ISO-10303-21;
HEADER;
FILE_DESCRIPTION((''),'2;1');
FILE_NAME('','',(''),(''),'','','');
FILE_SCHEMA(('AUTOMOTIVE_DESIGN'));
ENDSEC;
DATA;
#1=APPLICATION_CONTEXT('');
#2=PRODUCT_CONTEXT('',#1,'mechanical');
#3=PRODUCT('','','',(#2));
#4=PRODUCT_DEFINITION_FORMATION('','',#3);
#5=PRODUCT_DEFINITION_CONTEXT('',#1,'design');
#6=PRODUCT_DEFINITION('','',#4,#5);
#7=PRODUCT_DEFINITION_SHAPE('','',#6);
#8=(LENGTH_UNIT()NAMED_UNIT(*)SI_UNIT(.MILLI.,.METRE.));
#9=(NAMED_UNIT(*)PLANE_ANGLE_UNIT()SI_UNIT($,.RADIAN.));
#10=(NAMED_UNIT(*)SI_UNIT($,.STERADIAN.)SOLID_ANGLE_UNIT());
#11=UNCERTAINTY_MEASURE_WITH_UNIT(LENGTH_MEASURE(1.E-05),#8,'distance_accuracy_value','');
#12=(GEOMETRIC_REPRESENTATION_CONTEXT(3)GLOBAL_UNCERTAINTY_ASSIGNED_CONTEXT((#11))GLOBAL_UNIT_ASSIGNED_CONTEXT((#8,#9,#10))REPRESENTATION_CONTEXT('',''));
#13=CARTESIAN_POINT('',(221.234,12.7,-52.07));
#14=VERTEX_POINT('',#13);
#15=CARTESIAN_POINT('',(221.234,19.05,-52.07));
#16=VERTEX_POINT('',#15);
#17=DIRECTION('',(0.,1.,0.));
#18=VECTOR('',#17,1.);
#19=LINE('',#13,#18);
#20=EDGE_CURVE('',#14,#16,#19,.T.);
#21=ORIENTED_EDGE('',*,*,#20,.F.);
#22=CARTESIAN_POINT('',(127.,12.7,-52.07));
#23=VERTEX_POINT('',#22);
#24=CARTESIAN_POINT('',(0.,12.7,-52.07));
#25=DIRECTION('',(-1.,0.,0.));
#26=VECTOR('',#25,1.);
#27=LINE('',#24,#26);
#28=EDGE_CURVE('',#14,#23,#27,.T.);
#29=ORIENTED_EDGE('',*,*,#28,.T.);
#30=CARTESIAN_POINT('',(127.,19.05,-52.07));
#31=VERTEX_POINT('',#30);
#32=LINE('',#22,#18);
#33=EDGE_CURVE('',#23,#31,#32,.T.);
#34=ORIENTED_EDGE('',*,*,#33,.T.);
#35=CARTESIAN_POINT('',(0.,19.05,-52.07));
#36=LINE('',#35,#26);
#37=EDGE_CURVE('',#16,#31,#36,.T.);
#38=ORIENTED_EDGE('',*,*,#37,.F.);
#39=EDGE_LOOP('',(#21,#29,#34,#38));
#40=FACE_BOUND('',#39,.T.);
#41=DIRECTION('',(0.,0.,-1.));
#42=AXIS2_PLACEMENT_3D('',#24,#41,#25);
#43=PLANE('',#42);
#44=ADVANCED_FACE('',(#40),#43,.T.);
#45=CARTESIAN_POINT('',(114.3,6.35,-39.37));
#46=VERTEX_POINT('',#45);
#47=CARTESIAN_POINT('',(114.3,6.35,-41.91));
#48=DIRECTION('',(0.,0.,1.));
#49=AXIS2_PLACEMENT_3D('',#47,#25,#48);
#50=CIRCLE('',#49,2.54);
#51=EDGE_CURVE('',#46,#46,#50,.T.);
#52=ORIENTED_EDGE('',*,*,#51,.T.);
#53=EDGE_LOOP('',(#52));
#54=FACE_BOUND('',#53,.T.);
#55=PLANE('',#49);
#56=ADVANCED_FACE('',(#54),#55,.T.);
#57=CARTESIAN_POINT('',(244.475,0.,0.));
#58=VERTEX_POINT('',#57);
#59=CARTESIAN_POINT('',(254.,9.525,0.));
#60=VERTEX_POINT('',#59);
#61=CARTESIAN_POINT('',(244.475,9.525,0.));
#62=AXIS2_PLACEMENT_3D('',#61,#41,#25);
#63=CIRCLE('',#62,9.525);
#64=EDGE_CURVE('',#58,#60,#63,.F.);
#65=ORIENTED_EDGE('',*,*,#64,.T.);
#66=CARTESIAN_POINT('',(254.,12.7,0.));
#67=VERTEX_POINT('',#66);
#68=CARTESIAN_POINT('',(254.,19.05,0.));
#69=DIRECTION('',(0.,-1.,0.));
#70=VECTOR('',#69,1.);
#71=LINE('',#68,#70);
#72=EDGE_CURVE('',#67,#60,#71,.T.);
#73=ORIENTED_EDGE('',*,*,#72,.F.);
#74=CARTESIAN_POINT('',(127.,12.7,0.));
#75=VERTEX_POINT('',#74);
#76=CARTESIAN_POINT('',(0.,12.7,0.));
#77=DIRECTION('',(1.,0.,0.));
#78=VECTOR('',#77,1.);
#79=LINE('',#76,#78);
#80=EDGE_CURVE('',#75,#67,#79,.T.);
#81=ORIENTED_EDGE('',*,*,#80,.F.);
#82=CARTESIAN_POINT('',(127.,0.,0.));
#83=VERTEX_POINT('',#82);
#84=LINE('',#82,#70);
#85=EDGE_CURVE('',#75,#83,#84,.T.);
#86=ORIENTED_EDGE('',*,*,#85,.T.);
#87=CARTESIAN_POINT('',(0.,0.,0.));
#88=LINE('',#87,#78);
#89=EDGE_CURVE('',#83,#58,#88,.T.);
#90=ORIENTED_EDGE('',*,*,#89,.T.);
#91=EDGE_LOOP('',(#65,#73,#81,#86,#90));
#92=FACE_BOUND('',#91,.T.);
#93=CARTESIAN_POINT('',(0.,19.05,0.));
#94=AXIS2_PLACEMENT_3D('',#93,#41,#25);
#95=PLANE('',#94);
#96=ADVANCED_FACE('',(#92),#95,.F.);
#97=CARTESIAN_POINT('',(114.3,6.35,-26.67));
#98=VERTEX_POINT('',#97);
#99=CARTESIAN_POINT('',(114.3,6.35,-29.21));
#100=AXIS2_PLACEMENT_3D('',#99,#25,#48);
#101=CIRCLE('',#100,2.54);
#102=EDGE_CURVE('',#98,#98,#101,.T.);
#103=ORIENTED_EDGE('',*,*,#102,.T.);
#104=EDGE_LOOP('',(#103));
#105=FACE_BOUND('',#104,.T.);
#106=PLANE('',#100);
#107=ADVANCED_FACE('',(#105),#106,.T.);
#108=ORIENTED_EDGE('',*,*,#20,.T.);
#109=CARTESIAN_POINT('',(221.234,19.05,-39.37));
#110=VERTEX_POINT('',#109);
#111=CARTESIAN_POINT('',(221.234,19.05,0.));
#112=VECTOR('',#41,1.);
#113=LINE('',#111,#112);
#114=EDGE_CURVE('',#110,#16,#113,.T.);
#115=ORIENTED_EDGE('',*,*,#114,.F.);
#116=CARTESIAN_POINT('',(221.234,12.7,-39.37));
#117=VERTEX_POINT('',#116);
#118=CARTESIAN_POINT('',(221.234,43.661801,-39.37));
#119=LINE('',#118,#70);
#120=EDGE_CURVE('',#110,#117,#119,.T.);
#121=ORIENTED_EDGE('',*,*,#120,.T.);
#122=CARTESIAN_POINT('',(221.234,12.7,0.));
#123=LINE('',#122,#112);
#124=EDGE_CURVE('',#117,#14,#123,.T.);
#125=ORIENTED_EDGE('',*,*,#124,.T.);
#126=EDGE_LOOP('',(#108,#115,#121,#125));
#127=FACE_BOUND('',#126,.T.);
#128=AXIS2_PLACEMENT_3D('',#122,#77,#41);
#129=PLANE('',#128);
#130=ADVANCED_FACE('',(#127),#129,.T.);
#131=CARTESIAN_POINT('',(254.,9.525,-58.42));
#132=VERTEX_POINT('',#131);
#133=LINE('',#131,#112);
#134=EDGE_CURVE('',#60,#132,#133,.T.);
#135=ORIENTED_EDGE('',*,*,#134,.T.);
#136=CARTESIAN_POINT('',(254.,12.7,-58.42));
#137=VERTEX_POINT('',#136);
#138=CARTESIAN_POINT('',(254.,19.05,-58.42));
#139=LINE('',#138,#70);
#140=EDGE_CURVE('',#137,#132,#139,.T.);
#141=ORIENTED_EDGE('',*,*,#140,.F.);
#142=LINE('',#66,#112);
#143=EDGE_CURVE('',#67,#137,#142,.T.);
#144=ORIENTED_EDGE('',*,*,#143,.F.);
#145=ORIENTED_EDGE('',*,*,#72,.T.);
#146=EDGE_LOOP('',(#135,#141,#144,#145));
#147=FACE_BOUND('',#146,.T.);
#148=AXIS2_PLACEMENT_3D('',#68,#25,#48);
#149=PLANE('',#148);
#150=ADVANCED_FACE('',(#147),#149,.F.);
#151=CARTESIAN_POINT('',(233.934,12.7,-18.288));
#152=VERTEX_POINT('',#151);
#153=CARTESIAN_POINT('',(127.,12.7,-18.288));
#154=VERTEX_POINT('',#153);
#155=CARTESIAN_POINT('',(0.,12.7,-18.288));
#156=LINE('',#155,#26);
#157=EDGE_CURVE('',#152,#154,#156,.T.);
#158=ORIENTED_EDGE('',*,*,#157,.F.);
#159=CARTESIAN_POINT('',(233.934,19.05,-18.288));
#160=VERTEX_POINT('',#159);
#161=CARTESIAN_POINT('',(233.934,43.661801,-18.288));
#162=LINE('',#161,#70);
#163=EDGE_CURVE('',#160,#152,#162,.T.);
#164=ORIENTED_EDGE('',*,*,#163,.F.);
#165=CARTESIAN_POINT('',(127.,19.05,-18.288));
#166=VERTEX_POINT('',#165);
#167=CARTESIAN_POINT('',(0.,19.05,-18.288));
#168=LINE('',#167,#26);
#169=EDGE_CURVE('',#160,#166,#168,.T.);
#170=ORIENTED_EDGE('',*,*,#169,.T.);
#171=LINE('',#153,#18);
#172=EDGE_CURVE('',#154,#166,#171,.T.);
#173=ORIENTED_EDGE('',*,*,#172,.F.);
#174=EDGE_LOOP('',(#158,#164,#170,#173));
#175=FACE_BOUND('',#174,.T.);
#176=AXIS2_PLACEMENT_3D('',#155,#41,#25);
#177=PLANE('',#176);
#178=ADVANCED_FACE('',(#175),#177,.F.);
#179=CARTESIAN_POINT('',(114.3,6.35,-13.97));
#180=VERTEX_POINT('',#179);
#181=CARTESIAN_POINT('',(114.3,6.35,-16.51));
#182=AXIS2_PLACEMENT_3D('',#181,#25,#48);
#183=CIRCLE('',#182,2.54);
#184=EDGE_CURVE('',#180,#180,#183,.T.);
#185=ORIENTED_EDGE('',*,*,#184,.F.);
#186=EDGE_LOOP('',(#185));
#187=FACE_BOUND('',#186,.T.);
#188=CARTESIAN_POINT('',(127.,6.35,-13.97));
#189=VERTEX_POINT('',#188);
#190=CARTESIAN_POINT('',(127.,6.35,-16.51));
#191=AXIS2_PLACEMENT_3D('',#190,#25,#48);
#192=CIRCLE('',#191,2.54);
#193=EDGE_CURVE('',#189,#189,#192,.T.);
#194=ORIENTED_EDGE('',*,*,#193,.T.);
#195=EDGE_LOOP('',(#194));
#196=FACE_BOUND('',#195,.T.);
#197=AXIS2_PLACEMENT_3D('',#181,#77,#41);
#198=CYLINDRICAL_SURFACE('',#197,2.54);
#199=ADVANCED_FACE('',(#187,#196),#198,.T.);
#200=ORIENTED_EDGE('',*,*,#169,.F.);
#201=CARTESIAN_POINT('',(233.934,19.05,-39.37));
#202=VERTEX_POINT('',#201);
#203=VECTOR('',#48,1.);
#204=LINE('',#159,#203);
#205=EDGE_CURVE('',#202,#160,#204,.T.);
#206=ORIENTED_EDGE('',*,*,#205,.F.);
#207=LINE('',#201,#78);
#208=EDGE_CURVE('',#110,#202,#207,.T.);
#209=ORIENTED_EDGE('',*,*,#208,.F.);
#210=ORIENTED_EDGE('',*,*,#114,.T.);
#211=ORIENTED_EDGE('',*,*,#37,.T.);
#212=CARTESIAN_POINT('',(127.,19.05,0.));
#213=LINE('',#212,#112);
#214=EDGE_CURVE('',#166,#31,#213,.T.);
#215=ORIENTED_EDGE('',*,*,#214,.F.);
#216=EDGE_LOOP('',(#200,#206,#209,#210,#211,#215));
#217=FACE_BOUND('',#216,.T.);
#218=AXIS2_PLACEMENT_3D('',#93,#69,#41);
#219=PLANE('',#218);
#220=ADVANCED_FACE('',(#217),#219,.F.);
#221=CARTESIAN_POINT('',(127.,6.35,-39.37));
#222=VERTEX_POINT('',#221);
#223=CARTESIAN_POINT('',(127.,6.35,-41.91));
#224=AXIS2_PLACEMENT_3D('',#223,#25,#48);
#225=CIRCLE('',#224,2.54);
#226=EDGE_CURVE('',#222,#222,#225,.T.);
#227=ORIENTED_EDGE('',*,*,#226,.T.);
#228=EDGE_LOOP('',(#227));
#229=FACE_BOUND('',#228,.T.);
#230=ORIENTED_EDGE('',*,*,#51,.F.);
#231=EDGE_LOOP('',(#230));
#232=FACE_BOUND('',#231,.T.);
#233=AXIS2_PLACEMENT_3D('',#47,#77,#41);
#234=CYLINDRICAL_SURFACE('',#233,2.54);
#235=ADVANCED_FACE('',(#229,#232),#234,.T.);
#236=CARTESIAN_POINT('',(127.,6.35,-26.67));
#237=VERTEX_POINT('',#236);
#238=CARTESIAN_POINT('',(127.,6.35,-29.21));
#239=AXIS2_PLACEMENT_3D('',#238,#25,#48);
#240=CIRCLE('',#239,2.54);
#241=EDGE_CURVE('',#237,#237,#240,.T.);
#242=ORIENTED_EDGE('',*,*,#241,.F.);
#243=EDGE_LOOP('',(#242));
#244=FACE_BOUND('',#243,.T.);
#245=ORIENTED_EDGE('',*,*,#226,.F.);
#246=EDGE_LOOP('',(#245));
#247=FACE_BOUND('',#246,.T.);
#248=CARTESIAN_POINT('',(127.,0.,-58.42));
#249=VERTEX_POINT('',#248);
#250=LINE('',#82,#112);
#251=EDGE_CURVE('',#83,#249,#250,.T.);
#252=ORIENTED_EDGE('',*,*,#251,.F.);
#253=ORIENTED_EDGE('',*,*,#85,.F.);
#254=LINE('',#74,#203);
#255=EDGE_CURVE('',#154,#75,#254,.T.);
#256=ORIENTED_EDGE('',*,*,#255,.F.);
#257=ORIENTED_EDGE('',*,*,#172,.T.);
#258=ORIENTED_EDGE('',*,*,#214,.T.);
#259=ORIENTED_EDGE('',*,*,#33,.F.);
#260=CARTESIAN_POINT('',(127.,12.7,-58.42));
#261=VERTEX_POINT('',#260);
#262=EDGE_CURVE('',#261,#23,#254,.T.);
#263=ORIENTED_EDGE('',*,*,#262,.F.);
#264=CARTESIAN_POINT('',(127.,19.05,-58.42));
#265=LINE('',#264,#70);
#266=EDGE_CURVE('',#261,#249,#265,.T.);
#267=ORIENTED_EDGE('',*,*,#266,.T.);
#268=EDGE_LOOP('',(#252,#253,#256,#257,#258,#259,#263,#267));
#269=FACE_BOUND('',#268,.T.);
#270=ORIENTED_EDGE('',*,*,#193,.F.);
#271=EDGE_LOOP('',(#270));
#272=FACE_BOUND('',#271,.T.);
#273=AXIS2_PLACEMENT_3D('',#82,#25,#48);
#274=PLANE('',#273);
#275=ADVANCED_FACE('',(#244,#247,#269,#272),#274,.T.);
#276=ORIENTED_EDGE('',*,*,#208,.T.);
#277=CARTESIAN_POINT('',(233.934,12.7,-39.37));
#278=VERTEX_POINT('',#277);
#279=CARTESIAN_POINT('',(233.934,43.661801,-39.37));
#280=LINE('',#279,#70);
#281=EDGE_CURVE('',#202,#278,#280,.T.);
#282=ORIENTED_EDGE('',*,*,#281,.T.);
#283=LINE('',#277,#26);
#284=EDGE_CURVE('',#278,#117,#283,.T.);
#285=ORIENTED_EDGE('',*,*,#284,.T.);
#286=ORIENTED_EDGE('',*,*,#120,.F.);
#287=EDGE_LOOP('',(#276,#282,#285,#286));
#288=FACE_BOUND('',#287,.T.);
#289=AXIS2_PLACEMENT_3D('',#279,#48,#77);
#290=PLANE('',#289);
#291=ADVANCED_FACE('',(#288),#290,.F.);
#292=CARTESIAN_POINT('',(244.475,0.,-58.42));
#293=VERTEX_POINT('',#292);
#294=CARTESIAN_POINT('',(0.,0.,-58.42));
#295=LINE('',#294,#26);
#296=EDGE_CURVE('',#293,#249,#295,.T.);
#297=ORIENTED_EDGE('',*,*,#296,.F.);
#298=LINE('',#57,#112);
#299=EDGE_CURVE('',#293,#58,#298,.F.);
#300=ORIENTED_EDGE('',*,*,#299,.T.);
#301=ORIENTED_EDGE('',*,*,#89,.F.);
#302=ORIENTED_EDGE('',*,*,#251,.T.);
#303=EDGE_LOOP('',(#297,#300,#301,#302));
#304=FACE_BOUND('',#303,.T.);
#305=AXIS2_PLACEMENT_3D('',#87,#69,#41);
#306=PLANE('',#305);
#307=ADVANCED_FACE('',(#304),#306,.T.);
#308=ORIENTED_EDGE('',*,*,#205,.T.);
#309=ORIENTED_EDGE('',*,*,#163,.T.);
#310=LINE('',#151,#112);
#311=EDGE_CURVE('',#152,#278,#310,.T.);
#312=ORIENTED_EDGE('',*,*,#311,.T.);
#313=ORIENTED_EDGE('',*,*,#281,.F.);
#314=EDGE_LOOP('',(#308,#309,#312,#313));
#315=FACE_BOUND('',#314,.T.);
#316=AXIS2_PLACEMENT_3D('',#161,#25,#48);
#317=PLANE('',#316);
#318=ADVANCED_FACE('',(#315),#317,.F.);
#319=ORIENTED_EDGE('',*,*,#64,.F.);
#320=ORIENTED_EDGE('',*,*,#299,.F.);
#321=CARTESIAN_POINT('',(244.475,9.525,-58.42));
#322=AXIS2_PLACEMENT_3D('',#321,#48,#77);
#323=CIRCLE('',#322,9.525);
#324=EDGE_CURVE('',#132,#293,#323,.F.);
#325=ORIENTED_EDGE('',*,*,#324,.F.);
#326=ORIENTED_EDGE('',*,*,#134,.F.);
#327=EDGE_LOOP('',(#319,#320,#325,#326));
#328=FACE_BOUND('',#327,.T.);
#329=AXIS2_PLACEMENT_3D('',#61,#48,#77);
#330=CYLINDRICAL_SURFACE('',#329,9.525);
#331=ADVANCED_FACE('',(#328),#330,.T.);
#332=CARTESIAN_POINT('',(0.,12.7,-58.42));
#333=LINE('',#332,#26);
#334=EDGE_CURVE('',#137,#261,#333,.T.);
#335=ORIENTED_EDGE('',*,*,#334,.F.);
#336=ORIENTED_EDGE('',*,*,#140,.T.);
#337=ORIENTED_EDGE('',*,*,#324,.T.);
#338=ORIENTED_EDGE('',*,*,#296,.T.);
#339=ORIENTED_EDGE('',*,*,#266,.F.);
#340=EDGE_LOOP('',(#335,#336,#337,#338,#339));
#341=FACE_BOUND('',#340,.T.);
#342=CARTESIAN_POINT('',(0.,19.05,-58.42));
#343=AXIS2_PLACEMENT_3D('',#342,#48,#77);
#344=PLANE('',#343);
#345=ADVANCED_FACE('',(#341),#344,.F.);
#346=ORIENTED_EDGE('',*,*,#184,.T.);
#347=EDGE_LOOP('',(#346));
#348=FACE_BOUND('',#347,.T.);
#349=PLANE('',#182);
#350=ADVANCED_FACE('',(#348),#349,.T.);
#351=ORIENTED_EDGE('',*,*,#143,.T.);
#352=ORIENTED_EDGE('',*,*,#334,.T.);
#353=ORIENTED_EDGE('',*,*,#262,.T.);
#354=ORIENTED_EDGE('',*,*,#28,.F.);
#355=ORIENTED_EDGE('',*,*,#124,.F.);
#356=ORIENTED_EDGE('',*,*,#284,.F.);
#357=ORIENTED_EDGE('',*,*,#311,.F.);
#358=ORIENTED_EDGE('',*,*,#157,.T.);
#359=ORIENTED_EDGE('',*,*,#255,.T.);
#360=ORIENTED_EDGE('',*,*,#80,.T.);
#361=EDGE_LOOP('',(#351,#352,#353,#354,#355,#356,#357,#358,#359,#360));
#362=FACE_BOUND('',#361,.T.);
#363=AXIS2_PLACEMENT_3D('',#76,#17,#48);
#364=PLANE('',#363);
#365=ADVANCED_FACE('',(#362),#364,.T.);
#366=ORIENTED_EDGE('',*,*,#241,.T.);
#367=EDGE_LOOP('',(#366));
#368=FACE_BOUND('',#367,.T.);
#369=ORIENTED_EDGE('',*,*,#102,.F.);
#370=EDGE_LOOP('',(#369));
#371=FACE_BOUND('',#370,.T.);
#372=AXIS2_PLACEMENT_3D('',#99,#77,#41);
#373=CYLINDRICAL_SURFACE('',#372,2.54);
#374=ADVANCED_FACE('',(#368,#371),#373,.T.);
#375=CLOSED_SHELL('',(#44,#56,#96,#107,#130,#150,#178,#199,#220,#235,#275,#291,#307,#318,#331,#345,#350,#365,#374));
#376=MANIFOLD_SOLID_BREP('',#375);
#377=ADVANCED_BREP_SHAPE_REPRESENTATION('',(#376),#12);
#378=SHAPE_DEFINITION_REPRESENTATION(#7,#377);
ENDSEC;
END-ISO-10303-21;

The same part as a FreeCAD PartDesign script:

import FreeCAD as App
import Part
import Sketcher
Q = App.Units.Quantity


def edges_at(feature, points):
    """Names of the edges that pass closest to the given points."""
    edges = feature.Shape.Edges
    near = lambda p: min(range(len(edges)), key=lambda i: edges[i].distToShape(Part.Vertex(*p))[0])
    return sorted({f"Edge{near(p) + 1}" for p in points})

doc = App.newDocument("Part")
body = doc.addObject("PartDesign::Body", "Body")

# Sketch on XZ plane
sketch1 = doc.addObject("Sketcher::SketchObject", "Sketch")
body.addObject(sketch1)
sketch1.AttachmentSupport = (doc.XZ_Plane, [""])
sketch1.MapMode = "FlatFace"
sketch1.addGeometry([
    Part.LineSegment(App.Vector(0, -58, 0), App.Vector(0, 0, 0)),
    Part.LineSegment(App.Vector(0, 0, 0), App.Vector(254, 0, 0)),
    Part.LineSegment(App.Vector(254, 0, 0), App.Vector(254, -58, 0)),
    Part.LineSegment(App.Vector(254, -58, 0), App.Vector(0, -58, 0)),
], False)
sketch1.addConstraint([
    Sketcher.Constraint("Coincident", 0, 2, 1, 1),
    Sketcher.Constraint("Coincident", 1, 2, 2, 1),
    Sketcher.Constraint("Coincident", 2, 2, 3, 1),
    Sketcher.Constraint("Coincident", 3, 2, 0, 1),
    Sketcher.Constraint("Vertical", 0),
    Sketcher.Constraint("Horizontal", 1),
    Sketcher.Constraint("Vertical", 2),
    Sketcher.Constraint("Horizontal", 3),
    Sketcher.Constraint("Coincident", 0, 2, -1, 1),
    Sketcher.Constraint("DistanceX", 1, 1, 1, 2, Q("10 in")),
    Sketcher.Constraint("DistanceY", 0, 1, 0, 2, Q("2.3 in")),
])
pad1 = doc.addObject("PartDesign::Pad", "Pad")
body.addObject(pad1)
pad1.Profile = sketch1
pad1.Length = Q("0.75 in")
pad1.Reversed = True

# Sketch on XZ plane
sketch2 = doc.addObject("Sketcher::SketchObject", "Sketch001")
body.addObject(sketch2)
sketch2.AttachmentSupport = (doc.XZ_Plane, [""])
sketch2.MapMode = "FlatFace"
sketch2.AttachmentOffset = App.Placement(App.Vector(0, 0, -0.75 * 25.4), App.Rotation())
sketch2.addGeometry([
    Part.LineSegment(App.Vector(254, 0, 0), App.Vector(254, -58, 0)),  # 0
    Part.LineSegment(App.Vector(254, -58, 0), App.Vector(0, -58, 0)),  # 1
    Part.LineSegment(App.Vector(0, -58, 0), App.Vector(0, 0, 0)),  # 2
    Part.LineSegment(App.Vector(0, 0, 0), App.Vector(254, 0, 0)),  # 3
    Part.LineSegment(App.Vector(221, -52, 0), App.Vector(221, -18, 0)),  # 4
    Part.LineSegment(App.Vector(221, -18, 0), App.Vector(33, -18, 0)),  # 5
    Part.LineSegment(App.Vector(33, -18, 0), App.Vector(33, -52, 0)),  # 6
    Part.LineSegment(App.Vector(33, -52, 0), App.Vector(221, -52, 0)),  # 7
], False)
sketch2.addConstraint([
    Sketcher.Constraint("Coincident", 0, 2, 1, 1),
    Sketcher.Constraint("Coincident", 1, 2, 2, 1),
    Sketcher.Constraint("Coincident", 2, 2, 3, 1),
    Sketcher.Constraint("Coincident", 3, 2, 0, 1),
    Sketcher.Constraint("Coincident", 4, 2, 5, 1),
    Sketcher.Constraint("Coincident", 5, 2, 6, 1),
    Sketcher.Constraint("Coincident", 6, 2, 7, 1),
    Sketcher.Constraint("Coincident", 7, 2, 4, 1),
    Sketcher.Constraint("Vertical", 0),
    Sketcher.Constraint("Horizontal", 1),
    Sketcher.Constraint("Vertical", 2),
    Sketcher.Constraint("Horizontal", 3),
    Sketcher.Constraint("Vertical", 4),
    Sketcher.Constraint("Horizontal", 5),
    Sketcher.Constraint("Vertical", 6),
    Sketcher.Constraint("Horizontal", 7),
    Sketcher.Constraint("Coincident", 2, 2, -1, 1),
    Sketcher.Constraint("DistanceX", 1, 2, 1, 1, Q("10 in")),
    Sketcher.Constraint("DistanceY", 0, 2, 0, 1, Q("2.3 in")),
    Sketcher.Constraint("DistanceX", 5, 2, 5, 1, Q("7.42 in")),
    Sketcher.Constraint("DistanceY", 4, 1, 4, 2, Q("1.33 in")),
    Sketcher.Constraint("DistanceX", -1, 1, 4, 2, Q("8.71 in")),
    Sketcher.Constraint("DistanceY", 4, 2, -1, 1, Q("0.72 in")),
])
pocket1 = doc.addObject("PartDesign::Pocket", "Pocket")
body.addObject(pocket1)
pocket1.Profile = sketch2
pocket1.Length = Q("0.25 in")
pocket1.Reversed = True
doc.recompute()

fillet = doc.addObject("PartDesign::Fillet", "Fillet")
body.addObject(fillet)
fillet.Base = (pocket1, edges_at(pocket1, [(254, 0, -29.21), (0, 0, -29.21)]))
fillet.Radius = Q("0.375 in")

# Sketch on YZ plane
sketch3 = doc.addObject("Sketcher::SketchObject", "Sketch002")
body.addObject(sketch3)
sketch3.AttachmentSupport = (doc.YZ_Plane, [""])
sketch3.MapMode = "FlatFace"
sketch3.AttachmentOffset = App.Placement(App.Vector(0, 0, 5 * 25.4), App.Rotation())
sketch3.addGeometry([
    Part.LineSegment(App.Vector(26, -65, 0), App.Vector(0, -65, 0)),
    Part.LineSegment(App.Vector(0, -65, 0), App.Vector(0, 0, 0)),
    Part.LineSegment(App.Vector(0, 0, 0), App.Vector(26, 0, 0)),
    Part.LineSegment(App.Vector(26, 0, 0), App.Vector(26, -65, 0)),
], False)
sketch3.addConstraint([
    Sketcher.Constraint("Coincident", 0, 2, 1, 1),
    Sketcher.Constraint("Coincident", 1, 2, 2, 1),
    Sketcher.Constraint("Coincident", 2, 2, 3, 1),
    Sketcher.Constraint("Coincident", 3, 2, 0, 1),
    Sketcher.Constraint("Horizontal", 0),
    Sketcher.Constraint("Vertical", 1),
    Sketcher.Constraint("Horizontal", 2),
    Sketcher.Constraint("Vertical", 3),
    Sketcher.Constraint("Coincident", 1, 2, -1, 1),
    Sketcher.Constraint("DistanceX", 0, 2, 0, 1, 25.722431),
    Sketcher.Constraint("DistanceY", 1, 1, 1, 2, 65.063506),
])
pocket2 = doc.addObject("PartDesign::Pocket", "Pocket001")
body.addObject(pocket2)
pocket2.Profile = sketch3
pocket2.Length = Q("5 in")

# Sketch on YZ plane
sketch4 = doc.addObject("Sketcher::SketchObject", "Sketch003")
body.addObject(sketch4)
sketch4.AttachmentSupport = (doc.YZ_Plane, [""])
sketch4.MapMode = "FlatFace"
sketch4.AttachmentOffset = App.Placement(App.Vector(0, 0, 5 * 25.4), App.Rotation())
sketch4.addGeometry([
    Part.Circle(App.Vector(6.3, -16.5, 0), App.Vector(0, 0, 1), 2.5),
    Part.Circle(App.Vector(6.3, -29.2, 0), App.Vector(0, 0, 1), 2.5),
    Part.Circle(App.Vector(6.3, -41.9, 0), App.Vector(0, 0, 1), 2.5),
], False)
sketch4.addConstraint([
    Sketcher.Constraint("Equal", 0, 1),
    Sketcher.Constraint("Equal", 1, 2),
    Sketcher.Constraint("Vertical", 0, 3, 1, 3),
    Sketcher.Constraint("Vertical", 1, 3, 2, 3),
    Sketcher.Constraint("Diameter", 0, Q("0.2 in")),
    Sketcher.Constraint("DistanceY", 2, 3, 0, 3, Q("1 in")),
    Sketcher.Constraint("DistanceY", 1, 3, 0, 3, Q("0.5 in")),
    Sketcher.Constraint("DistanceX", -1, 1, 0, 3, Q("0.25 in")),
    Sketcher.Constraint("DistanceY", 0, 3, -1, 1, Q("0.65 in")),
])
pad2 = doc.addObject("PartDesign::Pad", "Pad001")
body.addObject(pad2)
pad2.Profile = sketch4
pad2.Length = Q("0.5 in")
pad2.Reversed = True

# Sketch on XZ plane
sketch5 = doc.addObject("Sketcher::SketchObject", "Sketch004")
body.addObject(sketch5)
sketch5.AttachmentSupport = (doc.XZ_Plane, [""])
sketch5.MapMode = "FlatFace"
sketch5.AttachmentOffset = App.Placement(App.Vector(0, 0, -0.5 * 25.4), App.Rotation())
sketch5.addGeometry([
    Part.LineSegment(App.Vector(221, -39, 0), App.Vector(221, -18, 0)),
    Part.LineSegment(App.Vector(221, -18, 0), App.Vector(234, -18, 0)),
    Part.LineSegment(App.Vector(234, -18, 0), App.Vector(234, -39, 0)),
    Part.LineSegment(App.Vector(234, -39, 0), App.Vector(221, -39, 0)),
], False)
sketch5.addConstraint([
    Sketcher.Constraint("Coincident", 0, 2, 1, 1),
    Sketcher.Constraint("Coincident", 1, 2, 2, 1),
    Sketcher.Constraint("Coincident", 2, 2, 3, 1),
    Sketcher.Constraint("Coincident", 3, 2, 0, 1),
    Sketcher.Constraint("Vertical", 0),
    Sketcher.Constraint("Horizontal", 1),
    Sketcher.Constraint("Vertical", 2),
    Sketcher.Constraint("Horizontal", 3),
    Sketcher.Constraint("DistanceX", 1, 1, 1, 2, Q("0.5 in")),
    Sketcher.Constraint("DistanceY", 0, 1, 0, 2, Q("0.83 in")),
    Sketcher.Constraint("DistanceX", -1, 1, 0, 2, Q("8.71 in")),
    Sketcher.Constraint("DistanceY", 0, 2, -1, 1, Q("0.72 in")),
])
pad3 = doc.addObject("PartDesign::Pad", "Pad002")
body.addObject(pad3)
pad3.Profile = sketch5
pad3.Length = Q("0.25 in")
pad3.Reversed = True

doc.recompute()
